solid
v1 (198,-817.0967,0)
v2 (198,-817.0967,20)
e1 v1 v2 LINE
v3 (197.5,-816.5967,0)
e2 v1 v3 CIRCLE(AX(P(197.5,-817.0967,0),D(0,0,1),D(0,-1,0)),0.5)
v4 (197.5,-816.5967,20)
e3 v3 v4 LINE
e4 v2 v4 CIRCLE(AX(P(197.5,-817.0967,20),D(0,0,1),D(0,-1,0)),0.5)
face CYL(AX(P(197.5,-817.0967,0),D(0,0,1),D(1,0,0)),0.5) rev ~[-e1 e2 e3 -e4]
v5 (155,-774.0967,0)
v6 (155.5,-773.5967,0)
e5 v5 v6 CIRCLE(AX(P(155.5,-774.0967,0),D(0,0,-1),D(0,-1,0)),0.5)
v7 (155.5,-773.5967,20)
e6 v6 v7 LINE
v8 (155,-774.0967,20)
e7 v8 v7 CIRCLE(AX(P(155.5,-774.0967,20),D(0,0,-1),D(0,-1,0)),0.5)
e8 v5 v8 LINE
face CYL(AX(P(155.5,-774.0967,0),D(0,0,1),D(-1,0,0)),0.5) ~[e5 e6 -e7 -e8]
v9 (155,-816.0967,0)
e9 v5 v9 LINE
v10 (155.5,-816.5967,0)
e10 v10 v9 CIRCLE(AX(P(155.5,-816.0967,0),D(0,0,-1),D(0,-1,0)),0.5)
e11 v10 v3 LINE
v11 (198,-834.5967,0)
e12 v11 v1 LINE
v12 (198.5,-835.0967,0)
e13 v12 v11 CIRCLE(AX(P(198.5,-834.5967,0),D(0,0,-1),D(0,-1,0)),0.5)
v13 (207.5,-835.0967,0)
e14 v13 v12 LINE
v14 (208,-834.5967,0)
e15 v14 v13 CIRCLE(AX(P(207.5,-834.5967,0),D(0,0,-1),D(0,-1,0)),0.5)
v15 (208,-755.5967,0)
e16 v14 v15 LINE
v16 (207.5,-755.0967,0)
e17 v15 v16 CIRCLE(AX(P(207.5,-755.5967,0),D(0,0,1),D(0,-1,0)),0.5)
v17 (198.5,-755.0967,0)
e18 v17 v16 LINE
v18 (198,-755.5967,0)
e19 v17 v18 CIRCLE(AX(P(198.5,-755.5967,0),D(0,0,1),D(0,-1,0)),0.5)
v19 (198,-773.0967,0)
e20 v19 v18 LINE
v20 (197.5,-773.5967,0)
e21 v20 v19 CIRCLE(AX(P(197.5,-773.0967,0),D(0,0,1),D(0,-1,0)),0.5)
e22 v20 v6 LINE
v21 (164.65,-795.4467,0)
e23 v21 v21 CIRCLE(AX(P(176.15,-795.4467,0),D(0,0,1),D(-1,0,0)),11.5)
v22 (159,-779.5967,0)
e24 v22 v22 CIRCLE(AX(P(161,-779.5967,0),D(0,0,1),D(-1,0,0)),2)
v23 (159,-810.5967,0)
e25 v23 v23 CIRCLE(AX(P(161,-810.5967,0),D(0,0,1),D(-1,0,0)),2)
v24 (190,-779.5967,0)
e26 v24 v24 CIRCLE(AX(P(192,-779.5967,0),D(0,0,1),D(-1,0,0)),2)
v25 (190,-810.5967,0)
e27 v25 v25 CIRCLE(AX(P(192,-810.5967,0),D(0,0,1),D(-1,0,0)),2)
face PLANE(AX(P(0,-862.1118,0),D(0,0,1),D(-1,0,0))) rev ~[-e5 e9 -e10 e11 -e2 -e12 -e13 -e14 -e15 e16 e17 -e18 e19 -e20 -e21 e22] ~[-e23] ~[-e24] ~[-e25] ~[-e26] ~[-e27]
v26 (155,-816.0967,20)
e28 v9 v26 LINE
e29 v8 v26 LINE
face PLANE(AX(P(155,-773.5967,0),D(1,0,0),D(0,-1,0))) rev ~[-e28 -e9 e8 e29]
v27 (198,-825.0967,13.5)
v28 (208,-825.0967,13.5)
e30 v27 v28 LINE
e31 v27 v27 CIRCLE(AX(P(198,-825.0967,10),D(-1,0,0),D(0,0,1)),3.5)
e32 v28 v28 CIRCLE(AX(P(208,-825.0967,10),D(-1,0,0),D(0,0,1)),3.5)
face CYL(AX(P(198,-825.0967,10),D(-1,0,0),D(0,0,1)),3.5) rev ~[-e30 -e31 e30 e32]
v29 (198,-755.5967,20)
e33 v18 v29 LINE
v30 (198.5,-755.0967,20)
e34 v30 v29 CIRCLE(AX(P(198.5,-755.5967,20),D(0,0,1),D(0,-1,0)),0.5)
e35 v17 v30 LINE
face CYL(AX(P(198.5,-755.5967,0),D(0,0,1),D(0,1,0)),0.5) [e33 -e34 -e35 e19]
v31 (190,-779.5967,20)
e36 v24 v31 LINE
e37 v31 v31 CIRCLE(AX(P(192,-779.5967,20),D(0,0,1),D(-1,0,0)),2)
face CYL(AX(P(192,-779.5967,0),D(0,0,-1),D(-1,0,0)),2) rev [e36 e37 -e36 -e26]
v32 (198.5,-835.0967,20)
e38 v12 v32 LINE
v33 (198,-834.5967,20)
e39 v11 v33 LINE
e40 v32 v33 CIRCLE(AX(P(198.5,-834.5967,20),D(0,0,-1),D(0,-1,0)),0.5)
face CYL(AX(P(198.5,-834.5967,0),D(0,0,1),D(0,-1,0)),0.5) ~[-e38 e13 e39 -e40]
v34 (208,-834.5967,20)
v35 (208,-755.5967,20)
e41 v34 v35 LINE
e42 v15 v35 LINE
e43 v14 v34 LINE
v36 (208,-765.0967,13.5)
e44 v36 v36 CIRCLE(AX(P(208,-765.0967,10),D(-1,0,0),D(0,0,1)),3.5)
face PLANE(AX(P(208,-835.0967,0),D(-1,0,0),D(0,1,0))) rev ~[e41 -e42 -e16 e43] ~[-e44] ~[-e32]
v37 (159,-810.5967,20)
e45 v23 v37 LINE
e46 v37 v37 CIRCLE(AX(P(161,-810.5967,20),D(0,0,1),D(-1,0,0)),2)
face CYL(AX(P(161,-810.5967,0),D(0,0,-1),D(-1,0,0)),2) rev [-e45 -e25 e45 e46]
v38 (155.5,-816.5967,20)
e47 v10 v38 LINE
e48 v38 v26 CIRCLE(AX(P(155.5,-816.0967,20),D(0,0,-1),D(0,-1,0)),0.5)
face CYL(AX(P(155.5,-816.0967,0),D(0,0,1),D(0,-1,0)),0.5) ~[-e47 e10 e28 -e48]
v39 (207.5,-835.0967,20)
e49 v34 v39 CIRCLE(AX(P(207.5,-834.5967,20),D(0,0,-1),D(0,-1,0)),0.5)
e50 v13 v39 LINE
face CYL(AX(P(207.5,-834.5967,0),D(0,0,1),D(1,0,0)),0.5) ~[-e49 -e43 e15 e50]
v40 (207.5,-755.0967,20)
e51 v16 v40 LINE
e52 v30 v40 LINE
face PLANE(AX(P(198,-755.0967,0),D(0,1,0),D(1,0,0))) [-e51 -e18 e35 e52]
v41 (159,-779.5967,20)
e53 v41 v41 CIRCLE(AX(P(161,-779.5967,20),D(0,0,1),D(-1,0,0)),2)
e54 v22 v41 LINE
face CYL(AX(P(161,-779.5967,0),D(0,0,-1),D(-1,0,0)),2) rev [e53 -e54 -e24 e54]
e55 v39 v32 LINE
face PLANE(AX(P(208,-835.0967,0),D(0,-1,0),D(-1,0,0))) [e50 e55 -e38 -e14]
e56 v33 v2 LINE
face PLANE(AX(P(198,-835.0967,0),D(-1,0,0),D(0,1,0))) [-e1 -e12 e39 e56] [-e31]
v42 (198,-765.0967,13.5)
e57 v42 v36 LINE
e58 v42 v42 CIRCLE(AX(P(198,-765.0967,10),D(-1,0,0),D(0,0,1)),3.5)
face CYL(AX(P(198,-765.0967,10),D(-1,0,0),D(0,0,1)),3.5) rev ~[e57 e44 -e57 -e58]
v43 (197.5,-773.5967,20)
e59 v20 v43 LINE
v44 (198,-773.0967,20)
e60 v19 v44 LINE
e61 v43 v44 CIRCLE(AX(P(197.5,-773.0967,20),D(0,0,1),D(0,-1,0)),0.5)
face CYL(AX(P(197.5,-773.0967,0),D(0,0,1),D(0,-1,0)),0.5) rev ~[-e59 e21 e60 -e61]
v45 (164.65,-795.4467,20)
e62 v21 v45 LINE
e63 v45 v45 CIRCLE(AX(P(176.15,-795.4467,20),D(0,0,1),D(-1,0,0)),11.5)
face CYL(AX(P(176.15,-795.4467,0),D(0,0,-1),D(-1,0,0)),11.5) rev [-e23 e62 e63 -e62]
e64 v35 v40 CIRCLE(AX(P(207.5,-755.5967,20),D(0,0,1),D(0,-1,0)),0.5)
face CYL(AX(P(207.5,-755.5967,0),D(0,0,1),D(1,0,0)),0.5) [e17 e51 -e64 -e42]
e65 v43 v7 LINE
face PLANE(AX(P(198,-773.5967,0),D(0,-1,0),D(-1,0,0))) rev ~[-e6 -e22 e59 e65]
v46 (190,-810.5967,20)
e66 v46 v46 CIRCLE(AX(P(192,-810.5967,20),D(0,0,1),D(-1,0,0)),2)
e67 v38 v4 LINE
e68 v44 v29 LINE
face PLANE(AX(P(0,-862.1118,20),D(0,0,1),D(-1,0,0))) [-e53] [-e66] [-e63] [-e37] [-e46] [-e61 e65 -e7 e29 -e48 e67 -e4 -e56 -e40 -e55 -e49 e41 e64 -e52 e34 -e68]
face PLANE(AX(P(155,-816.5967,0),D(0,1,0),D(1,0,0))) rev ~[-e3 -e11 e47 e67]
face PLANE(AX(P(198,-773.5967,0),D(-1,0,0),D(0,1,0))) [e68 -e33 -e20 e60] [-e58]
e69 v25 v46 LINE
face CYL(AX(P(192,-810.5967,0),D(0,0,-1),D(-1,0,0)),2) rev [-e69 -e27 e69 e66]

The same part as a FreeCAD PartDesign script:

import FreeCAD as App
import Part
import Sketcher
from FreeCAD import Vector
Q = App.Units.Quantity


def edges_at(feature, points):
    """Names of the edges that pass closest to the given points."""
    edges = feature.Shape.Edges
    near = lambda p: min(range(len(edges)), key=lambda i: edges[i].distToShape(Part.Vertex(*p))[0])
    return sorted({f"Edge{near(p) + 1}" for p in points})

doc = App.newDocument("Part")
body = doc.addObject("PartDesign::Body", "Body")

sketch1 = doc.addObject("Sketcher::SketchObject", "Sketch")
body.addObject(sketch1)
sketch1.AttachmentSupport = (doc.XY_Plane, [""])
sketch1.MapMode = "FlatFace"
sketch1.addGeometry([
    Part.LineSegment(Vector(208, -835.1, 0), Vector(208, -755.1, 0)),
    Part.LineSegment(Vector(208, -755.1, 0), Vector(198, -755.1, 0)),
    Part.LineSegment(Vector(198, -755.1, 0), Vector(198, -773.6, 0)),
    Part.LineSegment(Vector(198, -773.6, 0), Vector(155, -773.6, 0)),
    Part.LineSegment(Vector(155, -773.6, 0), Vector(155, -816.6, 0)),
    Part.LineSegment(Vector(155, -816.6, 0), Vector(198, -816.6, 0)),
    Part.LineSegment(Vector(198, -816.6, 0), Vector(198, -835.1, 0)),
    Part.LineSegment(Vector(198, -835.1, 0), Vector(208, -835.1, 0)),
    Part.Circle(Vector(192, -779.6, 0), Vector(0, 0, 1), 2),
    Part.Circle(Vector(192, -810.6, 0), Vector(0, 0, 1), 2),
    Part.Circle(Vector(176.2, -795.4, 0), Vector(0, 0, 1), 11.5),
    Part.Circle(Vector(161, -779.6, 0), Vector(0, 0, 1), 2),
    Part.Circle(Vector(161, -810.6, 0), Vector(0, 0, 1), 2),
], False)
sketch1.addConstraint([
    Sketcher.Constraint("Coincident", 0, 2, 1, 1),
    Sketcher.Constraint("Coincident", 1, 2, 2, 1),
    Sketcher.Constraint("Coincident", 2, 2, 3, 1),
    Sketcher.Constraint("Coincident", 3, 2, 4, 1),
    Sketcher.Constraint("Coincident", 4, 2, 5, 1),
    Sketcher.Constraint("Coincident", 5, 2, 6, 1),
    Sketcher.Constraint("Coincident", 6, 2, 7, 1),
    Sketcher.Constraint("Coincident", 7, 2, 0, 1),
    Sketcher.Constraint("Vertical", 0),
    Sketcher.Constraint("Horizontal", 1),
    Sketcher.Constraint("Vertical", 2),
    Sketcher.Constraint("Horizontal", 3),
    Sketcher.Constraint("Vertical", 4),
    Sketcher.Constraint("Horizontal", 5),
    Sketcher.Constraint("Vertical", 6),
    Sketcher.Constraint("Horizontal", 7),
    Sketcher.Constraint("Equal", 8, 9),
    Sketcher.Constraint("Equal", 9, 11),
    Sketcher.Constraint("Equal", 11, 12),
    Sketcher.Constraint("Horizontal", 8, 3, 11, 3),
    Sketcher.Constraint("Horizontal", 9, 3, 12, 3),
    Sketcher.Constraint("Vertical", 8, 3, 9, 3),
    Sketcher.Constraint("Vertical", 11, 3, 12, 3),
    Sketcher.Constraint("Vertical", 2, 2, 5, 2),
    Sketcher.Constraint("Equal", 5, 4),
    Sketcher.Constraint("Equal", 2, 6),
    Sketcher.Constraint("Diameter", 8, Q("4 mm")),
    Sketcher.Constraint("Diameter", 10, Q("23 mm")),
    Sketcher.Constraint("DistanceX", 1, 2, 1, 1, Q("10 mm")),
    Sketcher.Constraint("DistanceX", 3, 2, 3, 1, Q("43 mm")),
    Sketcher.Constraint("DistanceY", 0, 1, 0, 2, Q("80 mm")),
    Sketcher.Constraint("DistanceY", 9, 3, 8, 3, Q("31 mm")),
    Sketcher.Constraint("DistanceX", 11, 3, 8, 3, Q("31 mm")),
    Sketcher.Constraint("DistanceX", 8, 3, 1, 2, Q("6 mm")),
    Sketcher.Constraint("DistanceY", 8, 3, 2, 2, Q("6 mm")),
    Sketcher.Constraint("DistanceX", 3, 2, 10, 3, Q("21.15 mm")),
    Sketcher.Constraint("DistanceY", 4, 2, 10, 3, Q("21.15 mm")),
    Sketcher.Constraint("DistanceX", -1, 1, 8, 3, Q("192 mm")),
    Sketcher.Constraint("DistanceY", 8, 3, -1, 1, Q("779.5967 mm")),
])
pad1 = doc.addObject("PartDesign::Pad", "Pad")
body.addObject(pad1)
pad1.Profile = sketch1
pad1.Length = 20

sketch2 = doc.addObject("Sketcher::SketchObject", "Sketch001")
body.addObject(sketch2)
sketch2.AttachmentSupport = (doc.YZ_Plane, [""])
sketch2.MapMode = "FlatFace"
sketch2.AttachmentOffset = App.Placement(Vector(0, 0, 198), App.Rotation())
sketch2.addGeometry([
    Part.Circle(Vector(-765.1, 10, 0), Vector(0, 0, 1), 3.5),
    Part.Circle(Vector(-825.1, 10, 0), Vector(0, 0, 1), 3.5),
], False)
sketch2.addConstraint([
    Sketcher.Constraint("Equal", 0, 1),
    Sketcher.Constraint("Horizontal", 0, 3, 1, 3),
    Sketcher.Constraint("Diameter", 0, Q("7 mm")),
    Sketcher.Constraint("DistanceY", -1, 1, 0, 3, Q("10 mm")),
    Sketcher.Constraint("DistanceX", 1, 3, 0, 3, Q("60 mm")),
    Sketcher.Constraint("DistanceX", 0, 3, -1, 1, Q("765.0967 mm")),
])
pocket1 = doc.addObject("PartDesign::Pocket", "Pocket")
body.addObject(pocket1)
pocket1.Profile = sketch2
pocket1.Length = 10
pocket1.Reversed = True
doc.recompute()

fillet = doc.addObject("PartDesign::Fillet", "Fillet")
body.addObject(fillet)
fillet.Base = (pocket1, edges_at(pocket1, [
    (198, -816.597, 10),
    (198, -773.597, 10),
    (155, -773.597, 10),
    (155, -816.597, 10),
    (198, -835.097, 10),
    (208, -835.097, 10),
    (198, -755.097, 10),
    (208, -755.097, 10),
]))
fillet.Radius = 0.5

doc.recompute()
